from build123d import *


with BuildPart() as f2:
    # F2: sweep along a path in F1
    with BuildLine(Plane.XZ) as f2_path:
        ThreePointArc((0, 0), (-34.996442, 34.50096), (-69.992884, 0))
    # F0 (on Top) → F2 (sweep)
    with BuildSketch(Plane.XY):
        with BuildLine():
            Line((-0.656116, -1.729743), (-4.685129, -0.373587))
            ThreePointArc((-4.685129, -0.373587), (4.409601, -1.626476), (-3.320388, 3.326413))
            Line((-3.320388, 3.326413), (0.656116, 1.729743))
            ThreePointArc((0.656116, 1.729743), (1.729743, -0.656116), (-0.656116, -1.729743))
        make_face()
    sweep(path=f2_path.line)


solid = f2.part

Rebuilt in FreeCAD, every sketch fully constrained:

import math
import FreeCAD as App
import Part
import Sketcher
from FreeCAD import Vector
Q = App.Units.Quantity

doc = App.newDocument("Part")
body = doc.addObject("PartDesign::Body", "Body")

# Sketch on XY plane
sketch1 = body.newObject("Sketcher::SketchObject", "Sketch")
sketch1.AttachmentSupport = (doc.getObject("XY_Plane"), [""])
sketch1.MapMode = "FlatFace"
sketch1.addGeometry([
    Part.LineSegment(Vector(-0.7, -1.7, 0), Vector(-4.7, -0.4, 0)),
    Part.ArcOfCircle(Part.Circle(Vector(0, 0, 0), Vector(0, 0, 1), 4.7), math.radians(-175), math.radians(135)),
    Part.LineSegment(Vector(-3.3, 3.3, 0), Vector(0.7, 1.7, 0)),
    Part.ArcOfCircle(Part.Circle(Vector(0, 0, 0), Vector(0, 0, 1), 1.8), math.radians(-111), math.radians(69)),
], False)
sketch1.addConstraint([
    Sketcher.Constraint("Coincident", 0, 2, 1, 1),
    Sketcher.Constraint("Coincident", 1, 2, 2, 1),
    Sketcher.Constraint("Coincident", 2, 2, 3, 2),
    Sketcher.Constraint("Coincident", 3, 1, 0, 1),
    Sketcher.Constraint("Coincident", 1, 3, -1, 1),
    Sketcher.Constraint("Coincident", 3, 3, -1, 1),
    Sketcher.Constraint("Radius", 1, Q("4.7 mm")),
    Sketcher.Constraint("Radius", 3, Q("1.85 mm")),
    Sketcher.Constraint("DistanceY", 0, 2, 1, 2, Q("3.7 mm")),
    Sketcher.Constraint("Distance", 0, Q("4.25113 mm")),
    Sketcher.Constraint("DistanceX", 0, 2, -1, 1, Q("4.685129 mm")),
    Sketcher.Constraint("DistanceY", 2, 2, 1, 2, Q("1.59667 mm")),
])

# Sketch on XZ plane
sketch2 = body.newObject("Sketcher::SketchObject", "Sketch001")
sketch2.AttachmentSupport = (doc.getObject("XZ_Plane"), [""])
sketch2.MapMode = "FlatFace"
sketch2.addGeometry(Part.ArcOfCircle(Part.Circle(Vector(-35, 0, 0), Vector(0, 0, 1), 35), math.radians(1), math.radians(179)), False)
sketch2.addConstraint([
    Sketcher.Constraint("Coincident", 0, 1, -1, 1),
    Sketcher.Constraint("PointOnObject", 0, 2, -1),
    Sketcher.Constraint("Radius", 0, Q("35 mm")),
    Sketcher.Constraint("DistanceY", 0, 3, -1, 1, Q("0.49904 mm")),
])
doc.recompute()

additivepipe = body.newObject("PartDesign::AdditivePipe", "AdditivePipe")
additivepipe.Profile = sketch1
additivepipe.Spine = (sketch2, ["Edge1"])

doc.recompute()
